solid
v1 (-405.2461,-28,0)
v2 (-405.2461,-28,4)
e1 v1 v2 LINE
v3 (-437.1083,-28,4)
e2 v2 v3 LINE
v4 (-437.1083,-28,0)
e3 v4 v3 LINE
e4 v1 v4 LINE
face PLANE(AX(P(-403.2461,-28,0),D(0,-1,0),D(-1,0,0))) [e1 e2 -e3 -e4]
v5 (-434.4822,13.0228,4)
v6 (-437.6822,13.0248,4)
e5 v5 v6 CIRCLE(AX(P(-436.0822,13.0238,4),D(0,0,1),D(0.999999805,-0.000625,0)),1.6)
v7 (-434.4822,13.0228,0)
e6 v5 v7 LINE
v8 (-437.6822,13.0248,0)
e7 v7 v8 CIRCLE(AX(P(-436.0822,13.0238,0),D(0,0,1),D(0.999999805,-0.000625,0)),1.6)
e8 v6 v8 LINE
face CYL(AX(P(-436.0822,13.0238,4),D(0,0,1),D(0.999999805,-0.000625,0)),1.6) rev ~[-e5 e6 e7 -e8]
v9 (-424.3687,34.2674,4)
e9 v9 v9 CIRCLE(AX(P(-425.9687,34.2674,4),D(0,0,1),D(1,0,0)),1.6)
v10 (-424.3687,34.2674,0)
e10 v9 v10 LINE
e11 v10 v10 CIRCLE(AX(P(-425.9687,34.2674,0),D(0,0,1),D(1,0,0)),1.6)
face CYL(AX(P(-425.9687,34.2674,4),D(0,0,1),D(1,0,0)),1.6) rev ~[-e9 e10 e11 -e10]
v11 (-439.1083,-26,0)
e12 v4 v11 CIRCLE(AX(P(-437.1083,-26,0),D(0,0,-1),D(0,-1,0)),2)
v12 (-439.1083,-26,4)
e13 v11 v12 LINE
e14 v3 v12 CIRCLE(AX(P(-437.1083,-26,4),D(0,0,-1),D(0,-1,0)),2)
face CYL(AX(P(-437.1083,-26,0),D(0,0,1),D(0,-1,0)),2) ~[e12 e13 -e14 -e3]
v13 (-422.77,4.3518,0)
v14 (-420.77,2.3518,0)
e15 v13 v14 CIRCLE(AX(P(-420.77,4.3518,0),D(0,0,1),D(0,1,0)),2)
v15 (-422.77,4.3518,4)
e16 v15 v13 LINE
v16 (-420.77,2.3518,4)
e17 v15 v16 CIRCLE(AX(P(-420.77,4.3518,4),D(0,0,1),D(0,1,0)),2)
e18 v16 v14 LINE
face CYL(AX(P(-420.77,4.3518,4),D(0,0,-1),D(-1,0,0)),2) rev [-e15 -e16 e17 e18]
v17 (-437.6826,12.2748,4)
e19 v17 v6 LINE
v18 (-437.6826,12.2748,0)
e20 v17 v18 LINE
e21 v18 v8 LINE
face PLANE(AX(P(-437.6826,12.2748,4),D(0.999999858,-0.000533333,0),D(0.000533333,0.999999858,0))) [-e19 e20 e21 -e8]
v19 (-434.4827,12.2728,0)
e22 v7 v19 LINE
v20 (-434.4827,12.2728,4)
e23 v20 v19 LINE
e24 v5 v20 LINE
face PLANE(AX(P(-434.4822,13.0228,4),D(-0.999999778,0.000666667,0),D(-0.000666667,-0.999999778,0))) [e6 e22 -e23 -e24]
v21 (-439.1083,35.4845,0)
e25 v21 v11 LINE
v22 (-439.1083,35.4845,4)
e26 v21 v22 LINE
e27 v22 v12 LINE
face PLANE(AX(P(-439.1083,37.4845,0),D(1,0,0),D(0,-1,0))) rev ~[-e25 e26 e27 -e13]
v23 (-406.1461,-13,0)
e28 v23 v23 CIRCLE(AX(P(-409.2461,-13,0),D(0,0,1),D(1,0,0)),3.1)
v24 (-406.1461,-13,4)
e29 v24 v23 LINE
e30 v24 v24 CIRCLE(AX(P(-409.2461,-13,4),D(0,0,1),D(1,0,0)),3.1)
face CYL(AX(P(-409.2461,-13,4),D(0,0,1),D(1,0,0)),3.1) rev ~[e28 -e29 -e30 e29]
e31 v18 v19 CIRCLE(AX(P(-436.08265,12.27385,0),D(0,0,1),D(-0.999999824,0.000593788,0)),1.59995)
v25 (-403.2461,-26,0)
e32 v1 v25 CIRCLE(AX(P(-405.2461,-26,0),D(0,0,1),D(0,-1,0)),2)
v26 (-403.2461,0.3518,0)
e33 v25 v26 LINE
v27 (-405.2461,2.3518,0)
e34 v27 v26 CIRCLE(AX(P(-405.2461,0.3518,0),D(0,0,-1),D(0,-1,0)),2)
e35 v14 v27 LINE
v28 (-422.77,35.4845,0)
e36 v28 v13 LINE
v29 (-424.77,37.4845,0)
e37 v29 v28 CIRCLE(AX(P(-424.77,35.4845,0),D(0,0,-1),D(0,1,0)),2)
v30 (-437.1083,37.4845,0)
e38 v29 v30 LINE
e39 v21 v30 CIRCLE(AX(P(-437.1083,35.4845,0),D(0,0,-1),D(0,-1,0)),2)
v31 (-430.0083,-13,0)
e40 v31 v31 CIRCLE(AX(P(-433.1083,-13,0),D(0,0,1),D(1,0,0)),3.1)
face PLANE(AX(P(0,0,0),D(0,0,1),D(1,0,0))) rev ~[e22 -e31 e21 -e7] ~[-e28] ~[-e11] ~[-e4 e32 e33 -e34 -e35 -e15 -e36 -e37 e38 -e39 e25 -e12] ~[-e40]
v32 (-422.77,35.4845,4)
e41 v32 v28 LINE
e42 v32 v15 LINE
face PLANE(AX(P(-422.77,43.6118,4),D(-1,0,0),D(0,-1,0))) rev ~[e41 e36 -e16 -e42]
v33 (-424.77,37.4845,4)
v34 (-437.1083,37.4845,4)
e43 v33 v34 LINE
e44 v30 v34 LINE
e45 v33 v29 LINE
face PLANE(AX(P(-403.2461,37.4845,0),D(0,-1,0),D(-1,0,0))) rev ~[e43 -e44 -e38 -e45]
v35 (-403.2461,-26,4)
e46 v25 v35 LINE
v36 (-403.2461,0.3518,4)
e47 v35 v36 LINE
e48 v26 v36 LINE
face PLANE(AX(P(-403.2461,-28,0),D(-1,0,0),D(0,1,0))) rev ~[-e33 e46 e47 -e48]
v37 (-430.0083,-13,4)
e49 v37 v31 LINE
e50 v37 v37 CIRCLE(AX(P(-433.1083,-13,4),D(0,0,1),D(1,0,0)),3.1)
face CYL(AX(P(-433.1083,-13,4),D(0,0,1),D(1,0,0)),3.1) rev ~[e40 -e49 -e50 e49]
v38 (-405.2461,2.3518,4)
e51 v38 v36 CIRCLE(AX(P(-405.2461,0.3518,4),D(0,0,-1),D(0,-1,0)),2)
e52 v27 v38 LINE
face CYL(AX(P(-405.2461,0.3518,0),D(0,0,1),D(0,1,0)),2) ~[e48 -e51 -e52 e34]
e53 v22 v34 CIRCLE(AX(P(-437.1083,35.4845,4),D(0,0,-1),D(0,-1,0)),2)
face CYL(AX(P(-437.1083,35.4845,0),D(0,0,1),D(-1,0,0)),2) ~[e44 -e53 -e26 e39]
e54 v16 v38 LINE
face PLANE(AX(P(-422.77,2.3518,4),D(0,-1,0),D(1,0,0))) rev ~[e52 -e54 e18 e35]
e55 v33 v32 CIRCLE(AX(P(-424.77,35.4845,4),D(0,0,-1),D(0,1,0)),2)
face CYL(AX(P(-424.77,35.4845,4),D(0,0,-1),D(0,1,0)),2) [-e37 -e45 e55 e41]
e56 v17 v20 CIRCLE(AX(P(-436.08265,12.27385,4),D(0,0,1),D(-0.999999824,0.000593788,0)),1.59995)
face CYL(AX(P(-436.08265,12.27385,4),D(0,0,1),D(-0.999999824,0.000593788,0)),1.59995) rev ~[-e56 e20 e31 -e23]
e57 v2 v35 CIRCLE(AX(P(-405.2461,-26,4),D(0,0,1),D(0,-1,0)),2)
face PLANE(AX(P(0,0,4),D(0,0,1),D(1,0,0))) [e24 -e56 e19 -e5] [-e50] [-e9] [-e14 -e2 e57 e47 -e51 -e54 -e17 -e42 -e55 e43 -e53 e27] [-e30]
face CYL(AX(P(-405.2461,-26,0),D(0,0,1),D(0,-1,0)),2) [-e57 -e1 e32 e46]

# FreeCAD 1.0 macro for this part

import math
import FreeCAD as App
import Part
import Sketcher

V = App.Vector
Q = App.Units.Quantity


def edges_at(feature, points):
    """Names of the edges that pass closest to the given points."""
    edges = feature.Shape.Edges
    near = lambda p: min(range(len(edges)), key=lambda i: edges[i].distToShape(Part.Vertex(*p))[0])
    return sorted({f"Edge{near(p) + 1}" for p in points})


def add_polygon(sketch, points):
    """Adds a closed chain of lines whose ends are joined by coincident constraints."""
    first, n = sketch.GeometryCount, len(points)
    for a, b in zip(points, points[1:] + points[:1]):
        sketch.addGeometry(Part.LineSegment(App.Vector(*a, 0), App.Vector(*b, 0)), False)
    for i in range(n):
        sketch.addConstraint(Sketcher.Constraint("Coincident", first + i, 2, first + (i + 1) % n, 1))

doc = App.newDocument("Part")
body = doc.addObject("PartDesign::Body", "Body")

# Sketch on XY plane
sketch1 = body.newObject("Sketcher::SketchObject", "Sketch")
sketch1.AttachmentSupport = (doc.getObject("XY_Plane"), [""])
sketch1.MapMode = "FlatFace"
add_polygon(sketch1, [(-439.1083, -28), (-403.2461, -28), (-403.2461, 37.4845), (-439.1083, 37.4845)])  # lines 0-3
sketch1.addConstraint(Sketcher.Constraint("Horizontal", 0))
sketch1.addConstraint(Sketcher.Constraint("Vertical", 1))
sketch1.addConstraint(Sketcher.Constraint("Horizontal", 2))
sketch1.addConstraint(Sketcher.Constraint("Vertical", 3))
sketch1.addConstraint(Sketcher.Constraint("DistanceY", 0, 2, -1, 1, 28.0))
sketch1.addConstraint(Sketcher.Constraint("DistanceX", 0, 1, 0, 2, 35.8622))
sketch1.addConstraint(Sketcher.Constraint("DistanceY", 1, 1, 1, 2, 65.4845))
sketch1.addConstraint(Sketcher.Constraint("DistanceX", 0, 2, -1, 1, 403.246))
pad1 = body.newObject("PartDesign::Pad", "Pad")
pad1.Profile = sketch1
pad1.Length = 4
doc.recompute()

fillet = body.newObject("PartDesign::Fillet", "Fillet")
fillet.Base = (pad1, edges_at(pad1, [
    (-439.108, -28, 2),
    (-403.246, -28, 2),
    (-439.108, 37.484, 2),
    (-403.246, 37.484, 2),
]))
fillet.Radius = 2

# Sketch on XY plane
sketch2 = body.newObject("Sketcher::SketchObject", "Sketch001")
sketch2.AttachmentSupport = (doc.getObject("XY_Plane"), [""])
sketch2.MapMode = "FlatFace"
sketch2.AttachmentOffset = App.Placement(V(0, 0, 4), App.Rotation())
sketch2.addGeometry(Part.Circle(V(-433.1083, -13, 0), V(0, 0, 1), 3.1), False)
sketch2.addGeometry(Part.Circle(V(-409.2461, -13, 0), V(0, 0, 1), 3.1), False)
sketch2.addConstraint(Sketcher.Constraint("Equal", 0, 1))
sketch2.addConstraint(Sketcher.Constraint("Horizontal", 0, 3, 1, 3))
sketch2.addConstraint(Sketcher.Constraint("Diameter", 0, 6.2))
sketch2.addConstraint(Sketcher.Constraint("DistanceY", 0, 3, -1, 1, 13.0))
sketch2.addConstraint(Sketcher.Constraint("DistanceX", 1, 3, -1, 1, 409.246))
sketch2.addConstraint(Sketcher.Constraint("DistanceX", 0, 3, -1, 1, 433.1083))
pocket1 = body.newObject("PartDesign::Pocket", "Pocket")
pocket1.Profile = sketch2
pocket1.Type = "ThroughAll"

# Sketch on XY plane
sketch3 = body.newObject("Sketcher::SketchObject", "Sketch002")
sketch3.AttachmentSupport = (doc.getObject("XY_Plane"), [""])
sketch3.MapMode = "FlatFace"
sketch3.AttachmentOffset = App.Placement(V(0, 0, 4), App.Rotation())
sketch3.addGeometry(Part.LineSegment(V(-437.6822, 13.0248, 0), V(-437.6826, 12.2748, 0)), False)
sketch3.addGeometry(Part.ArcOfCircle(Part.Circle(V(-436.0827, 12.2738, 0), V(0, 0, 1), 1.5999), math.radians(179.964188), math.radians(359.96419)), False)
sketch3.addGeometry(Part.LineSegment(V(-434.4827, 12.2728, 0), V(-434.4822, 13.0228, 0)), False)
sketch3.addGeometry(Part.ArcOfCircle(Part.Circle(V(-436.0822, 13.0238, 0), V(0, 0, 1), 1.6), math.radians(-0.03581), math.radians(179.96419)), False)
sketch3.addGeometry(Part.Circle(V(-425.9687, 34.2674, 0), V(0, 0, 1), 1.6), False)
sketch3.addConstraint(Sketcher.Constraint("Tangent", 0, 2, 1, 1))
sketch3.addConstraint(Sketcher.Constraint("Tangent", 1, 2, 2, 1))
sketch3.addConstraint(Sketcher.Constraint("Tangent", 2, 2, 3, 1))
sketch3.addConstraint(Sketcher.Constraint("Tangent", 3, 2, 0, 1))
sketch3.addConstraint(Sketcher.Constraint("Equal", 1, 3))
sketch3.addConstraint(Sketcher.Constraint("Equal", 3, 4))
sketch3.addConstraint(Sketcher.Constraint("Diameter", 4, 3.2))
sketch3.addConstraint(Sketcher.Constraint("Angle", 0, Q("-90.0306 deg")))
sketch3.addConstraint(Sketcher.Constraint("Distance", 0, 0.75))
sketch3.addConstraint(Sketcher.Constraint("DistanceX", 1, 3, 4, 3, 10.114))
sketch3.addConstraint(Sketcher.Constraint("DistanceX", 1, 3, -1, 1, 436.0827))
sketch3.addConstraint(Sketcher.Constraint("DistanceY", -1, 1, 1, 3, 12.2738))
sketch3.addConstraint(Sketcher.Constraint("DistanceY", -1, 1, 4, 3, 34.2674))
pocket2 = body.newObject("PartDesign::Pocket", "Pocket001")
pocket2.Profile = sketch3
pocket2.Type = "ThroughAll"

# Sketch on XY plane
sketch4 = body.newObject("Sketcher::SketchObject", "Sketch003")
sketch4.AttachmentSupport = (doc.getObject("XY_Plane"), [""])
sketch4.MapMode = "FlatFace"
sketch4.AttachmentOffset = App.Placement(V(0, 0, 4), App.Rotation())
add_polygon(sketch4, [(-394.0939, 2.3518), (-394.0939, 43.6118), (-422.77, 43.6118), (-422.77, 2.3518)])  # lines 0-3
sketch4.addConstraint(Sketcher.Constraint("Vertical", 0))
sketch4.addConstraint(Sketcher.Constraint("Horizontal", 1))
sketch4.addConstraint(Sketcher.Constraint("Vertical", 2))
sketch4.addConstraint(Sketcher.Constraint("Horizontal", 3))
sketch4.addConstraint(Sketcher.Constraint("DistanceY", 0, 1, 0, 2, 41.26))
sketch4.addConstraint(Sketcher.Constraint("DistanceX", 1, 2, 1, 1, 28.676))
sketch4.addConstraint(Sketcher.Constraint("DistanceX", 1, 2, -1, 1, 422.77))
sketch4.addConstraint(Sketcher.Constraint("DistanceY", -1, 1, 0, 2, 43.6118))
pocket3 = body.newObject("PartDesign::Pocket", "Pocket002")
pocket3.Profile = sketch4
pocket3.Type = "ThroughAll"
doc.recompute()

fillet2 = body.newObject("PartDesign::Fillet", "Fillet001")
fillet2.Base = (pocket3, edges_at(pocket3, [(-403.246, 2.352, 2), (-422.77, 37.484, 2), (-422.77, 2.352, 2)]))
fillet2.Radius = 2

doc.recompute()
